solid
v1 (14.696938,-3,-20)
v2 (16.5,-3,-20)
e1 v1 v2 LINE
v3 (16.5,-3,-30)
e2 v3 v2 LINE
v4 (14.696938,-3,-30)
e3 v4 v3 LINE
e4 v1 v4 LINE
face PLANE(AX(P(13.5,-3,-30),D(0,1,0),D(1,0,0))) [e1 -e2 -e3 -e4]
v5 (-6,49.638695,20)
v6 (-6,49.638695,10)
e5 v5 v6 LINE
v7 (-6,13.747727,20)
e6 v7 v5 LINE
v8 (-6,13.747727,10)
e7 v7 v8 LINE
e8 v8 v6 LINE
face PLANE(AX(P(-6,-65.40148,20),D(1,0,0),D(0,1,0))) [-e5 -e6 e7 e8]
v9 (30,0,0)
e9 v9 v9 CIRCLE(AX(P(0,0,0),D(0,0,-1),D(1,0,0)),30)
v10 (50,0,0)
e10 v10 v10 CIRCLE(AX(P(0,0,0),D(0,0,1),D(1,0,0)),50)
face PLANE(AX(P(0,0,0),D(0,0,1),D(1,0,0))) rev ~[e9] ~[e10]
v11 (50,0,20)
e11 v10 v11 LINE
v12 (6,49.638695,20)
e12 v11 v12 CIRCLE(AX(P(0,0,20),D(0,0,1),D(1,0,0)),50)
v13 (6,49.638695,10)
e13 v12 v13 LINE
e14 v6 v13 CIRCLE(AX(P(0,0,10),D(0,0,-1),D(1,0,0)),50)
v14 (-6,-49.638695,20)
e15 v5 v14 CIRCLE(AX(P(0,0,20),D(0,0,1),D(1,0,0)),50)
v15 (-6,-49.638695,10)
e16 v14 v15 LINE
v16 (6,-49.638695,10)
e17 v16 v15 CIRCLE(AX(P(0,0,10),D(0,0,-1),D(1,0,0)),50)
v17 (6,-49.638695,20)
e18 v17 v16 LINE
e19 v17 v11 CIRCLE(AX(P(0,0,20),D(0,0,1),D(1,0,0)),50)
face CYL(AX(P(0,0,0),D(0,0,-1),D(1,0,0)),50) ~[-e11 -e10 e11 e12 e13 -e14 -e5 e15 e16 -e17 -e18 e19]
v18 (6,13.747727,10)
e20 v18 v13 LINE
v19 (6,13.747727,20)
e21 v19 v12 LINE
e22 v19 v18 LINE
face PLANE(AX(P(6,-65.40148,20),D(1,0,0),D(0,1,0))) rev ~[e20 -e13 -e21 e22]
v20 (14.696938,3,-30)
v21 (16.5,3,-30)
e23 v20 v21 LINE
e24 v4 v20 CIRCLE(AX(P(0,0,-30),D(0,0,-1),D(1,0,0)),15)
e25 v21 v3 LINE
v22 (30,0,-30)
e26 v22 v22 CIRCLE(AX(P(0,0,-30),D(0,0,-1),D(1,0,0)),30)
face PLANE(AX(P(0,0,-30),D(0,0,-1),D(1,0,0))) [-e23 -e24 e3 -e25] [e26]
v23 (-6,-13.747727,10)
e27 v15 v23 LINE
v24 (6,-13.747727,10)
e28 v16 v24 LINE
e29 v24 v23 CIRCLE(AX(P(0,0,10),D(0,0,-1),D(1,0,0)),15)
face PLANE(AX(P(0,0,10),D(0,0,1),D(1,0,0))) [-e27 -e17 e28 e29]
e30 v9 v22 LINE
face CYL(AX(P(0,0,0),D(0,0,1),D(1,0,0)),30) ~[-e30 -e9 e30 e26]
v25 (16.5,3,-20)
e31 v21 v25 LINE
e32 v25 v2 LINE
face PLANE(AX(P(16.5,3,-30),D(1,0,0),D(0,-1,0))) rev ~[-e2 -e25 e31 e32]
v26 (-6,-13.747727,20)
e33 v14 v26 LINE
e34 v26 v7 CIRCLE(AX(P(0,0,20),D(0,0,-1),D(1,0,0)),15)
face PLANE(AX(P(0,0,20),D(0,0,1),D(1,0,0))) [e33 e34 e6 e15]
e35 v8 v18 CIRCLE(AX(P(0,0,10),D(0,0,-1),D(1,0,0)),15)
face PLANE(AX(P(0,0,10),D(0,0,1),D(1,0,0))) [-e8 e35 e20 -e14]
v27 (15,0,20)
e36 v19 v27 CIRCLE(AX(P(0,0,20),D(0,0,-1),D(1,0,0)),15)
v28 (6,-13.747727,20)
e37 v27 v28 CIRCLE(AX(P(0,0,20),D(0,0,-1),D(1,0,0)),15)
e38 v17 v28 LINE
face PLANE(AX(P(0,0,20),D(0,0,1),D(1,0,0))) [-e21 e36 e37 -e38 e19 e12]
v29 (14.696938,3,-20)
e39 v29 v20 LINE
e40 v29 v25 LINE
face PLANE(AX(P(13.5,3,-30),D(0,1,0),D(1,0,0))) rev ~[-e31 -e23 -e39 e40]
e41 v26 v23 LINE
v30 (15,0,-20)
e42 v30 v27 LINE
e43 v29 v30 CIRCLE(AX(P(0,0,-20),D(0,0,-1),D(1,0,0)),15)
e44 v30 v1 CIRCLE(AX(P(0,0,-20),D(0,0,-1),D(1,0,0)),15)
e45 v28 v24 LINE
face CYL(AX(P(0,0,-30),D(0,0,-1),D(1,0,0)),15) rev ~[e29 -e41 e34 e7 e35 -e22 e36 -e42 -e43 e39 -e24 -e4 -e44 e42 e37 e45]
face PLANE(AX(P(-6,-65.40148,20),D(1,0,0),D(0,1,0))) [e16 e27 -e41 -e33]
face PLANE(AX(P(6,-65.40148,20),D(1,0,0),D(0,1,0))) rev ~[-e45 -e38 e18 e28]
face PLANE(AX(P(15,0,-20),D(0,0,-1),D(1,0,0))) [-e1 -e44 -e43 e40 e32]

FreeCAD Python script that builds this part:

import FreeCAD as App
import Part
import Sketcher

doc = App.newDocument("Part")
params = doc.addObject("Spreadsheet::Sheet", "Params")
for row, (alias, value) in enumerate([
    ("sketch1_diameter", "100 mm"),
    ("pad1_length", "20 mm"),
    ("sketch2_width", "12 mm"),
    ("pocket1_length", "10 mm"),
    ("sketch3_diameter", "60 mm"),
    ("pad2_length", "30 mm"),
    ("sketch4_width", "3 mm"),
    ("sketch4_height", "6 mm"),
    ("pocket2_length", "10 mm"),
    ("sketch5_diameter", "30 mm"),
], start=1):
    params.set(f"A{row}", alias)
    params.set(f"B{row}", "=" + value)
    params.setAlias(f"B{row}", alias)

body = doc.addObject("PartDesign::Body", "Body")

# Sketch on XY plane
sketch1 = body.newObject("Sketcher::SketchObject", "Sketch")
sketch1.AttachmentSupport = (doc.getObject("XY_Plane"), [""])
sketch1.MapMode = "FlatFace"
sketch1.addGeometry(Part.Circle(App.Vector(0, 0, 0), App.Vector(0, 0, 1), 50), False)
sketch1.addConstraint(Sketcher.Constraint("Coincident", 0, 3, -1, 1))
sketch1.addConstraint(Sketcher.Constraint("Diameter", 0, 100.0))
sketch1.setExpression("Constraints[1]", "Params.sketch1_diameter")
pad1 = body.newObject("PartDesign::Pad", "Pad")
pad1.Profile = sketch1
pad1.setExpression("Length", "Params.pad1_length")

# Sketch on XY plane
sketch2 = body.newObject("Sketcher::SketchObject", "Sketch001")
sketch2.AttachmentSupport = (doc.getObject("XY_Plane"), [""])
sketch2.MapMode = "FlatFace"
sketch2.AttachmentOffset = App.Placement(App.Vector(0, 0, 20), App.Rotation())
sketch2.addGeometry(Part.LineSegment(App.Vector(-6, 65, 0), App.Vector(-6, -65, 0)), False)
sketch2.addGeometry(Part.LineSegment(App.Vector(-6, -65, 0), App.Vector(6, -65, 0)), False)
sketch2.addGeometry(Part.LineSegment(App.Vector(6, -65, 0), App.Vector(6, 65, 0)), False)
sketch2.addGeometry(Part.LineSegment(App.Vector(6, 65, 0), App.Vector(-6, 65, 0)), False)
sketch2.addConstraint(Sketcher.Constraint("Coincident", 0, 2, 1, 1))
sketch2.addConstraint(Sketcher.Constraint("Coincident", 1, 2, 2, 1))
sketch2.addConstraint(Sketcher.Constraint("Coincident", 2, 2, 3, 1))
sketch2.addConstraint(Sketcher.Constraint("Coincident", 3, 2, 0, 1))
sketch2.addConstraint(Sketcher.Constraint("Vertical", 0))
sketch2.addConstraint(Sketcher.Constraint("Horizontal", 1))
sketch2.addConstraint(Sketcher.Constraint("Vertical", 2))
sketch2.addConstraint(Sketcher.Constraint("Horizontal", 3))
sketch2.addConstraint(Sketcher.Constraint("Symmetric", 0, 2, 2, 2, -1, 1))
sketch2.addConstraint(Sketcher.Constraint("DistanceX", 1, 1, 1, 2, 12.0))
sketch2.addConstraint(Sketcher.Constraint("DistanceY", 0, 2, 0, 1, 130.80296))
sketch2.setExpression("Constraints[9]", "Params.sketch2_width")
pocket1 = body.newObject("PartDesign::Pocket", "Pocket")
pocket1.Profile = sketch2
pocket1.setExpression("Length", "Params.pocket1_length")

# Sketch on XY plane
sketch3 = body.newObject("Sketcher::SketchObject", "Sketch002")
sketch3.AttachmentSupport = (doc.getObject("XY_Plane"), [""])
sketch3.MapMode = "FlatFace"
sketch3.addGeometry(Part.Circle(App.Vector(0, 0, 0), App.Vector(0, 0, 1), 30), False)
sketch3.addConstraint(Sketcher.Constraint("Coincident", 0, 3, -1, 1))
sketch3.addConstraint(Sketcher.Constraint("Diameter", 0, 60.0))
sketch3.setExpression("Constraints[1]", "Params.sketch3_diameter")
pad2 = body.newObject("PartDesign::Pad", "Pad001")
pad2.Profile = sketch3
pad2.setExpression("Length", "Params.pad2_length")
pad2.Reversed = True

# Sketch on XY plane
sketch4 = body.newObject("Sketcher::SketchObject", "Sketch003")
sketch4.AttachmentSupport = (doc.getObject("XY_Plane"), [""])
sketch4.MapMode = "FlatFace"
sketch4.AttachmentOffset = App.Placement(App.Vector(0, 0, -30), App.Rotation())
sketch4.addGeometry(Part.LineSegment(App.Vector(13.5, -3, 0), App.Vector(13.5, 3, 0)), False)
sketch4.addGeometry(Part.LineSegment(App.Vector(13.5, 3, 0), App.Vector(16.5, 3, 0)), False)
sketch4.addGeometry(Part.LineSegment(App.Vector(16.5, 3, 0), App.Vector(16.5, -3, 0)), False)
sketch4.addGeometry(Part.LineSegment(App.Vector(16.5, -3, 0), App.Vector(13.5, -3, 0)), False)
sketch4.addConstraint(Sketcher.Constraint("Coincident", 0, 2, 1, 1))
sketch4.addConstraint(Sketcher.Constraint("Coincident", 1, 2, 2, 1))
sketch4.addConstraint(Sketcher.Constraint("Coincident", 2, 2, 3, 1))
sketch4.addConstraint(Sketcher.Constraint("Coincident", 3, 2, 0, 1))
sketch4.addConstraint(Sketcher.Constraint("Vertical", 0))
sketch4.addConstraint(Sketcher.Constraint("Horizontal", 1))
sketch4.addConstraint(Sketcher.Constraint("Vertical", 2))
sketch4.addConstraint(Sketcher.Constraint("Horizontal", 3))
sketch4.addConstraint(Sketcher.Constraint("DistanceX", 1, 1, 1, 2, 3.0))
sketch4.addConstraint(Sketcher.Constraint("DistanceY", 0, 1, 0, 2, 6.0))
sketch4.addConstraint(Sketcher.Constraint("DistanceY", -1, 1, 0, 2, 3.0))
sketch4.addConstraint(Sketcher.Constraint("DistanceX", -1, 1, 0, 2, 13.5))
sketch4.setExpression("Constraints[8]", "Params.sketch4_width")
sketch4.setExpression("Constraints[9]", "Params.sketch4_height")
pocket2 = body.newObject("PartDesign::Pocket", "Pocket001")
pocket2.Profile = sketch4
pocket2.setExpression("Length", "Params.pocket2_length")
pocket2.Reversed = True

# Sketch on XY plane
sketch5 = body.newObject("Sketcher::SketchObject", "Sketch004")
sketch5.AttachmentSupport = (doc.getObject("XY_Plane"), [""])
sketch5.MapMode = "FlatFace"
sketch5.AttachmentOffset = App.Placement(App.Vector(0, 0, -30), App.Rotation())
sketch5.addGeometry(Part.Circle(App.Vector(0, 0, 0), App.Vector(0, 0, 1), 15), False)
sketch5.addConstraint(Sketcher.Constraint("Coincident", 0, 3, -1, 1))
sketch5.addConstraint(Sketcher.Constraint("Diameter", 0, 30.0))
sketch5.setExpression("Constraints[1]", "Params.sketch5_diameter")
pocket3 = body.newObject("PartDesign::Pocket", "Pocket002")
pocket3.Profile = sketch5
pocket3.Type = "ThroughAll"
pocket3.Reversed = True

doc.recompute()
